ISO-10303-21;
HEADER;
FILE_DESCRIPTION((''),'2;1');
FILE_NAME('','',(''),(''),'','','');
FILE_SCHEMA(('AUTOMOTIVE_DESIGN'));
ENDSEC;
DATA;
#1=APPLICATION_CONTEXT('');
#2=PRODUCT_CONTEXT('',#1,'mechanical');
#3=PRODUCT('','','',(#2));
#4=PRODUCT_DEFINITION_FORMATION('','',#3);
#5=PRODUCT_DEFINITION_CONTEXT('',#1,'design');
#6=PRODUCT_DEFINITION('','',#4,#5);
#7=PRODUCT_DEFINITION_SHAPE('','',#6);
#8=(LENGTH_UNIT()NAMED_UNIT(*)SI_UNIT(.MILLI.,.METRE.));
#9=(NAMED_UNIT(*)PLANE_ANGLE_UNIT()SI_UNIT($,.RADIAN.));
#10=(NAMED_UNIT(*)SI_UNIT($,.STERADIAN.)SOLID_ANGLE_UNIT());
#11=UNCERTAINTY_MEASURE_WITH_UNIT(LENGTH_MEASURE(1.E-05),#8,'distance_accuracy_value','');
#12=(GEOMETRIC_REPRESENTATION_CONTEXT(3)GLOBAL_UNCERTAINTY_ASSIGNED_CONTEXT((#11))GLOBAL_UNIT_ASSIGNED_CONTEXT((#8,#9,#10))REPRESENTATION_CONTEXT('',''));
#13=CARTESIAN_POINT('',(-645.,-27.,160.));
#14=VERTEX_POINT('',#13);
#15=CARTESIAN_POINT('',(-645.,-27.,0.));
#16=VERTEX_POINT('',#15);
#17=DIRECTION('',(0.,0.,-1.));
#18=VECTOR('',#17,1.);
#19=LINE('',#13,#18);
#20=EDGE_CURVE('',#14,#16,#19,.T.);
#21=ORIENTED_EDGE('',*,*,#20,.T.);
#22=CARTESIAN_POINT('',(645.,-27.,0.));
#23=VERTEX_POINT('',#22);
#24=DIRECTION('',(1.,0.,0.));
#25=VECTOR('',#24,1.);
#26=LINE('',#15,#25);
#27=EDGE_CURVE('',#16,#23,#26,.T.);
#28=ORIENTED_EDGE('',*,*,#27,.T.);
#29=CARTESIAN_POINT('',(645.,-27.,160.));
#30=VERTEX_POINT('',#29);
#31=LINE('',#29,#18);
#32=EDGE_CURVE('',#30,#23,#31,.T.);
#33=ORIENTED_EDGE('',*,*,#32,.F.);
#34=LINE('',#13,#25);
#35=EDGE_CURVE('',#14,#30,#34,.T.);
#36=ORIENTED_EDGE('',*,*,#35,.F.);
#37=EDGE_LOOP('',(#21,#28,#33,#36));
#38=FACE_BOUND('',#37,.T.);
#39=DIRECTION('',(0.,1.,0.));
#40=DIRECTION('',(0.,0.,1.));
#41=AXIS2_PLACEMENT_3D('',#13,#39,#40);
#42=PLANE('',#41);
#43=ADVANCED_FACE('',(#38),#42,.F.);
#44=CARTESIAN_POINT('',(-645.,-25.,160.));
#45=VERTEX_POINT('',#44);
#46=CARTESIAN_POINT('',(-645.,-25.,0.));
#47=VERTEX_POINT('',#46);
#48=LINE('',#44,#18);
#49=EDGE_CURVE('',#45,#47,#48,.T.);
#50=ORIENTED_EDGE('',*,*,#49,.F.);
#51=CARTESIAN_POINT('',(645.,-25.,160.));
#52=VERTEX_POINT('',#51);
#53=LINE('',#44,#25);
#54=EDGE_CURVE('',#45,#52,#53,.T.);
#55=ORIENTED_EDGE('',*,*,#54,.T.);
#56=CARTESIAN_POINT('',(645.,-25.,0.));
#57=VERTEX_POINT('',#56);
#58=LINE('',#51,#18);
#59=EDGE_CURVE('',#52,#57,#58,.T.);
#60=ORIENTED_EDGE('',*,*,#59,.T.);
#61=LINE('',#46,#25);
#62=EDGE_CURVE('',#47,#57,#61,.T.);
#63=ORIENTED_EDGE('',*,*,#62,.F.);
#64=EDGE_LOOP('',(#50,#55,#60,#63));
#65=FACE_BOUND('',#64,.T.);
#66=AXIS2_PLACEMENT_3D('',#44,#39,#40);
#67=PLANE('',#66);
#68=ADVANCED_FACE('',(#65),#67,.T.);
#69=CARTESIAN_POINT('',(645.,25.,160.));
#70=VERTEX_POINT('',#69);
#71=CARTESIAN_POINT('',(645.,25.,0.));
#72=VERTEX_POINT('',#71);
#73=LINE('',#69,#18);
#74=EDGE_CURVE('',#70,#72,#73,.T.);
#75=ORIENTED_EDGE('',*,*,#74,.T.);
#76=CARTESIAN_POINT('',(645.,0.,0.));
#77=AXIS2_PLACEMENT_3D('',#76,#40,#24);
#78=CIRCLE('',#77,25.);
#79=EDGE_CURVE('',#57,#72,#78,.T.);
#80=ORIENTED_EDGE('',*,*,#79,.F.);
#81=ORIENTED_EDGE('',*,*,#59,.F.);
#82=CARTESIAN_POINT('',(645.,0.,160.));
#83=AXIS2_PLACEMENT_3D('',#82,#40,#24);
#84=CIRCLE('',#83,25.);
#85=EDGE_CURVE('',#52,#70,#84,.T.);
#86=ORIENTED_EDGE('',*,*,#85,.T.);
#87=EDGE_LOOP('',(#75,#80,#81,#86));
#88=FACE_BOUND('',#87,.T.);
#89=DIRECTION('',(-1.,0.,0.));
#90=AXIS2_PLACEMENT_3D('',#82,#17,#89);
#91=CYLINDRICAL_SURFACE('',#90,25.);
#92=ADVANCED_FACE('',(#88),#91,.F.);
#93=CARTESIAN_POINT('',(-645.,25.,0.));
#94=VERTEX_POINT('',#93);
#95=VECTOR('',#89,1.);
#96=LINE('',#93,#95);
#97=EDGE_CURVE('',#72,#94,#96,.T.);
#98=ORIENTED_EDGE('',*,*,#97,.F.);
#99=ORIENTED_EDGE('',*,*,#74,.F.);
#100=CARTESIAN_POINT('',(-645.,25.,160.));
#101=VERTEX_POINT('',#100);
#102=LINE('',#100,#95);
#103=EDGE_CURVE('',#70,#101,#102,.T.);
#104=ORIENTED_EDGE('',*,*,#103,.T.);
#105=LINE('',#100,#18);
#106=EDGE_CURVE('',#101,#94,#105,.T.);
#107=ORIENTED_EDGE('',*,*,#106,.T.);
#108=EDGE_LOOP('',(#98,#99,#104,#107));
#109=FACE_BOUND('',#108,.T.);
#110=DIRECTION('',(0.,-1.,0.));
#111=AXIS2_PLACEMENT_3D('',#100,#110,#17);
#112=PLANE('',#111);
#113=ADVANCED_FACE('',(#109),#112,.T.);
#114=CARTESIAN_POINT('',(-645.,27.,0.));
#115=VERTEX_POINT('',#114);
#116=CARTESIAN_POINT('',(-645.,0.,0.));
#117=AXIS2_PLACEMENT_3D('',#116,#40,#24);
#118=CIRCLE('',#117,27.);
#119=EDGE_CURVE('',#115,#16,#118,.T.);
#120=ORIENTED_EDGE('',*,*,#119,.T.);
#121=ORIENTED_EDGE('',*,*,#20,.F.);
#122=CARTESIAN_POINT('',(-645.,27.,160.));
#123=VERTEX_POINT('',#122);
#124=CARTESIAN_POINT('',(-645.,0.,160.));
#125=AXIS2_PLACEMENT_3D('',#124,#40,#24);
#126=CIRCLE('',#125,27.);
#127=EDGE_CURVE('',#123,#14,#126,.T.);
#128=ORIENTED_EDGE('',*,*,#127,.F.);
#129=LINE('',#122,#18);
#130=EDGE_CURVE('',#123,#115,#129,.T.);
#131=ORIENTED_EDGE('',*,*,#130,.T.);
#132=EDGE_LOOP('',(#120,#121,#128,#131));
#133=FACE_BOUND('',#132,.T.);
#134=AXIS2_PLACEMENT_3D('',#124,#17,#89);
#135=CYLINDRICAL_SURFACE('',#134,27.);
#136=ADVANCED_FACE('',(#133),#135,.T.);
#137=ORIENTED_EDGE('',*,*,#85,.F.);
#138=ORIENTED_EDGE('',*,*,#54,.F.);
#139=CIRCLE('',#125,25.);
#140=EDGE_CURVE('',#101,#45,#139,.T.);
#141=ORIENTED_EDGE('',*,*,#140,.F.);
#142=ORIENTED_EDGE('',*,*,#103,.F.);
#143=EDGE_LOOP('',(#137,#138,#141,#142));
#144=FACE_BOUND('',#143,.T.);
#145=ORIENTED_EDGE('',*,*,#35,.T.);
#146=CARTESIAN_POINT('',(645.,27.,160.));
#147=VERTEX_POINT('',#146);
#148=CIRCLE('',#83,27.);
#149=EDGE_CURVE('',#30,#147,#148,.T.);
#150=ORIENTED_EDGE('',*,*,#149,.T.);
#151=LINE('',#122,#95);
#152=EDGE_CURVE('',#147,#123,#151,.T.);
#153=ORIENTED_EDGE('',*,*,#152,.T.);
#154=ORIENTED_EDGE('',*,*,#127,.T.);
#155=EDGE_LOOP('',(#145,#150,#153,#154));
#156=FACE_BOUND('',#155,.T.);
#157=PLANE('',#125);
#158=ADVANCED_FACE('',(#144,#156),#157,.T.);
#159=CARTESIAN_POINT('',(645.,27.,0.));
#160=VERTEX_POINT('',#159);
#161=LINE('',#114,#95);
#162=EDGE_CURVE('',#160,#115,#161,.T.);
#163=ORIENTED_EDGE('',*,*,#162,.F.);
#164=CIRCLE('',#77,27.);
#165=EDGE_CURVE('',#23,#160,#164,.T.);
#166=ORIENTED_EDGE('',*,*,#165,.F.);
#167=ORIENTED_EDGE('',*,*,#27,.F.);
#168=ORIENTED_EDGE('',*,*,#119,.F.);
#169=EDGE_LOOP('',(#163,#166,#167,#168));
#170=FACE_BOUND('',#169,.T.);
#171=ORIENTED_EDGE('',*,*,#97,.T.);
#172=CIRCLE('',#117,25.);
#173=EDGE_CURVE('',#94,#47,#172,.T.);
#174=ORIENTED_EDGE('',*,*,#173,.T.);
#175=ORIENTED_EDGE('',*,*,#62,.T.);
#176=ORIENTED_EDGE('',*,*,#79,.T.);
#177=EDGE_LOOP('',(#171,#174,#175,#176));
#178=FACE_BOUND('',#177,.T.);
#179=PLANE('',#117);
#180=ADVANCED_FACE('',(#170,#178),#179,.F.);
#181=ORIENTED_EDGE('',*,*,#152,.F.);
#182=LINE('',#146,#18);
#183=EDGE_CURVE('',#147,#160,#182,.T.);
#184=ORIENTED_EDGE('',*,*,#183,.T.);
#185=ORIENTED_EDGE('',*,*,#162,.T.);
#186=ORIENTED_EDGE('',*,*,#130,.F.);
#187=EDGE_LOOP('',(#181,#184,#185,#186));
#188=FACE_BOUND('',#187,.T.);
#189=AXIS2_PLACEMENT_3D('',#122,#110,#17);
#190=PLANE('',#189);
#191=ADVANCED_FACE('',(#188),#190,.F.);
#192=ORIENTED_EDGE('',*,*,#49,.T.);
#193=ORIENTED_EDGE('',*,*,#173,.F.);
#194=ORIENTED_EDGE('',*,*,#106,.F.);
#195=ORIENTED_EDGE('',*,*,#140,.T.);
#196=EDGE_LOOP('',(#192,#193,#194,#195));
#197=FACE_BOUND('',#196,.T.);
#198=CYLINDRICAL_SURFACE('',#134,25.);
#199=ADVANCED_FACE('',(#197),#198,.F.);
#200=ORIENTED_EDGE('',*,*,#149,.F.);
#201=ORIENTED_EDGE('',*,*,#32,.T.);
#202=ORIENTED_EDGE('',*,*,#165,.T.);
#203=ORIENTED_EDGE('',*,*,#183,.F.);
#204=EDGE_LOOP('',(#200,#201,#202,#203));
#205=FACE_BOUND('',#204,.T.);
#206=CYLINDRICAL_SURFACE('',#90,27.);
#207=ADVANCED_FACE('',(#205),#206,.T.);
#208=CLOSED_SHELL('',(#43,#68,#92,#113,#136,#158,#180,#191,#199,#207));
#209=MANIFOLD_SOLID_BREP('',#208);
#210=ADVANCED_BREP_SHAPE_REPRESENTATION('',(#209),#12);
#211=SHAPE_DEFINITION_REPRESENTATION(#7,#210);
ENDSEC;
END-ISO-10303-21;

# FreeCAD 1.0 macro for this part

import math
import FreeCAD as App
import Part
import Sketcher

V = App.Vector

doc = App.newDocument("Part")
body = doc.addObject("PartDesign::Body", "Body")

# Sketch on XY plane
sketch1 = body.newObject("Sketcher::SketchObject", "Sketch")
sketch1.AttachmentSupport = (doc.getObject("XY_Plane"), [""])
sketch1.MapMode = "FlatFace"
sketch1.addGeometry([
    Part.LineSegment(V(645, 27, 0), V(-645, 27, 0)),  # 0
    Part.ArcOfCircle(Part.Circle(V(-645, 0, 0), V(0, 0, 1), 27), math.radians(90), math.radians(270)),  # 1
    Part.LineSegment(V(-645, -27, 0), V(645, -27, 0)),  # 2
    Part.ArcOfCircle(Part.Circle(V(645, 0, 0), V(0, 0, 1), 27), math.radians(-90), math.radians(90)),  # 3
    Part.LineSegment(V(-645, 25, 0), V(645, 25, 0)),  # 4
    Part.ArcOfCircle(Part.Circle(V(645, 0, 0), V(0, 0, 1), 25), math.radians(-90), math.radians(90)),  # 5
    Part.LineSegment(V(645, -25, 0), V(-645, -25, 0)),  # 6
    Part.ArcOfCircle(Part.Circle(V(-645, 0, 0), V(0, 0, 1), 25), math.radians(90), math.radians(270)),  # 7
], False)
sketch1.addConstraint([
    Sketcher.Constraint("Tangent", 0, 2, 1, 1),
    Sketcher.Constraint("Tangent", 1, 2, 2, 1),
    Sketcher.Constraint("Tangent", 2, 2, 3, 1),
    Sketcher.Constraint("Tangent", 3, 2, 0, 1),
    Sketcher.Constraint("Tangent", 4, 2, 5, 2),
    Sketcher.Constraint("Tangent", 5, 1, 6, 1),
    Sketcher.Constraint("Tangent", 6, 2, 7, 2),
    Sketcher.Constraint("Tangent", 7, 1, 4, 1),
    Sketcher.Constraint("Horizontal", 0),
    Sketcher.Constraint("Horizontal", 2),
    Sketcher.Constraint("Horizontal", 4),
    Sketcher.Constraint("Horizontal", 6),
    Sketcher.Constraint("Coincident", 5, 3, 3, 3),
    Sketcher.Constraint("Symmetric", 1, 3, 3, 3, -1, 1),
    Sketcher.Constraint("Vertical", 7, 3, 0, 2),
    Sketcher.Constraint("Radius", 1, 27.0),
    Sketcher.Constraint("Radius", 5, 25.0),
    Sketcher.Constraint("DistanceX", 0, 2, 0, 1, 1290.0),
])
pad1 = body.newObject("PartDesign::Pad", "Pad")
pad1.Profile = sketch1
pad1.Length = 160

doc.recompute()
